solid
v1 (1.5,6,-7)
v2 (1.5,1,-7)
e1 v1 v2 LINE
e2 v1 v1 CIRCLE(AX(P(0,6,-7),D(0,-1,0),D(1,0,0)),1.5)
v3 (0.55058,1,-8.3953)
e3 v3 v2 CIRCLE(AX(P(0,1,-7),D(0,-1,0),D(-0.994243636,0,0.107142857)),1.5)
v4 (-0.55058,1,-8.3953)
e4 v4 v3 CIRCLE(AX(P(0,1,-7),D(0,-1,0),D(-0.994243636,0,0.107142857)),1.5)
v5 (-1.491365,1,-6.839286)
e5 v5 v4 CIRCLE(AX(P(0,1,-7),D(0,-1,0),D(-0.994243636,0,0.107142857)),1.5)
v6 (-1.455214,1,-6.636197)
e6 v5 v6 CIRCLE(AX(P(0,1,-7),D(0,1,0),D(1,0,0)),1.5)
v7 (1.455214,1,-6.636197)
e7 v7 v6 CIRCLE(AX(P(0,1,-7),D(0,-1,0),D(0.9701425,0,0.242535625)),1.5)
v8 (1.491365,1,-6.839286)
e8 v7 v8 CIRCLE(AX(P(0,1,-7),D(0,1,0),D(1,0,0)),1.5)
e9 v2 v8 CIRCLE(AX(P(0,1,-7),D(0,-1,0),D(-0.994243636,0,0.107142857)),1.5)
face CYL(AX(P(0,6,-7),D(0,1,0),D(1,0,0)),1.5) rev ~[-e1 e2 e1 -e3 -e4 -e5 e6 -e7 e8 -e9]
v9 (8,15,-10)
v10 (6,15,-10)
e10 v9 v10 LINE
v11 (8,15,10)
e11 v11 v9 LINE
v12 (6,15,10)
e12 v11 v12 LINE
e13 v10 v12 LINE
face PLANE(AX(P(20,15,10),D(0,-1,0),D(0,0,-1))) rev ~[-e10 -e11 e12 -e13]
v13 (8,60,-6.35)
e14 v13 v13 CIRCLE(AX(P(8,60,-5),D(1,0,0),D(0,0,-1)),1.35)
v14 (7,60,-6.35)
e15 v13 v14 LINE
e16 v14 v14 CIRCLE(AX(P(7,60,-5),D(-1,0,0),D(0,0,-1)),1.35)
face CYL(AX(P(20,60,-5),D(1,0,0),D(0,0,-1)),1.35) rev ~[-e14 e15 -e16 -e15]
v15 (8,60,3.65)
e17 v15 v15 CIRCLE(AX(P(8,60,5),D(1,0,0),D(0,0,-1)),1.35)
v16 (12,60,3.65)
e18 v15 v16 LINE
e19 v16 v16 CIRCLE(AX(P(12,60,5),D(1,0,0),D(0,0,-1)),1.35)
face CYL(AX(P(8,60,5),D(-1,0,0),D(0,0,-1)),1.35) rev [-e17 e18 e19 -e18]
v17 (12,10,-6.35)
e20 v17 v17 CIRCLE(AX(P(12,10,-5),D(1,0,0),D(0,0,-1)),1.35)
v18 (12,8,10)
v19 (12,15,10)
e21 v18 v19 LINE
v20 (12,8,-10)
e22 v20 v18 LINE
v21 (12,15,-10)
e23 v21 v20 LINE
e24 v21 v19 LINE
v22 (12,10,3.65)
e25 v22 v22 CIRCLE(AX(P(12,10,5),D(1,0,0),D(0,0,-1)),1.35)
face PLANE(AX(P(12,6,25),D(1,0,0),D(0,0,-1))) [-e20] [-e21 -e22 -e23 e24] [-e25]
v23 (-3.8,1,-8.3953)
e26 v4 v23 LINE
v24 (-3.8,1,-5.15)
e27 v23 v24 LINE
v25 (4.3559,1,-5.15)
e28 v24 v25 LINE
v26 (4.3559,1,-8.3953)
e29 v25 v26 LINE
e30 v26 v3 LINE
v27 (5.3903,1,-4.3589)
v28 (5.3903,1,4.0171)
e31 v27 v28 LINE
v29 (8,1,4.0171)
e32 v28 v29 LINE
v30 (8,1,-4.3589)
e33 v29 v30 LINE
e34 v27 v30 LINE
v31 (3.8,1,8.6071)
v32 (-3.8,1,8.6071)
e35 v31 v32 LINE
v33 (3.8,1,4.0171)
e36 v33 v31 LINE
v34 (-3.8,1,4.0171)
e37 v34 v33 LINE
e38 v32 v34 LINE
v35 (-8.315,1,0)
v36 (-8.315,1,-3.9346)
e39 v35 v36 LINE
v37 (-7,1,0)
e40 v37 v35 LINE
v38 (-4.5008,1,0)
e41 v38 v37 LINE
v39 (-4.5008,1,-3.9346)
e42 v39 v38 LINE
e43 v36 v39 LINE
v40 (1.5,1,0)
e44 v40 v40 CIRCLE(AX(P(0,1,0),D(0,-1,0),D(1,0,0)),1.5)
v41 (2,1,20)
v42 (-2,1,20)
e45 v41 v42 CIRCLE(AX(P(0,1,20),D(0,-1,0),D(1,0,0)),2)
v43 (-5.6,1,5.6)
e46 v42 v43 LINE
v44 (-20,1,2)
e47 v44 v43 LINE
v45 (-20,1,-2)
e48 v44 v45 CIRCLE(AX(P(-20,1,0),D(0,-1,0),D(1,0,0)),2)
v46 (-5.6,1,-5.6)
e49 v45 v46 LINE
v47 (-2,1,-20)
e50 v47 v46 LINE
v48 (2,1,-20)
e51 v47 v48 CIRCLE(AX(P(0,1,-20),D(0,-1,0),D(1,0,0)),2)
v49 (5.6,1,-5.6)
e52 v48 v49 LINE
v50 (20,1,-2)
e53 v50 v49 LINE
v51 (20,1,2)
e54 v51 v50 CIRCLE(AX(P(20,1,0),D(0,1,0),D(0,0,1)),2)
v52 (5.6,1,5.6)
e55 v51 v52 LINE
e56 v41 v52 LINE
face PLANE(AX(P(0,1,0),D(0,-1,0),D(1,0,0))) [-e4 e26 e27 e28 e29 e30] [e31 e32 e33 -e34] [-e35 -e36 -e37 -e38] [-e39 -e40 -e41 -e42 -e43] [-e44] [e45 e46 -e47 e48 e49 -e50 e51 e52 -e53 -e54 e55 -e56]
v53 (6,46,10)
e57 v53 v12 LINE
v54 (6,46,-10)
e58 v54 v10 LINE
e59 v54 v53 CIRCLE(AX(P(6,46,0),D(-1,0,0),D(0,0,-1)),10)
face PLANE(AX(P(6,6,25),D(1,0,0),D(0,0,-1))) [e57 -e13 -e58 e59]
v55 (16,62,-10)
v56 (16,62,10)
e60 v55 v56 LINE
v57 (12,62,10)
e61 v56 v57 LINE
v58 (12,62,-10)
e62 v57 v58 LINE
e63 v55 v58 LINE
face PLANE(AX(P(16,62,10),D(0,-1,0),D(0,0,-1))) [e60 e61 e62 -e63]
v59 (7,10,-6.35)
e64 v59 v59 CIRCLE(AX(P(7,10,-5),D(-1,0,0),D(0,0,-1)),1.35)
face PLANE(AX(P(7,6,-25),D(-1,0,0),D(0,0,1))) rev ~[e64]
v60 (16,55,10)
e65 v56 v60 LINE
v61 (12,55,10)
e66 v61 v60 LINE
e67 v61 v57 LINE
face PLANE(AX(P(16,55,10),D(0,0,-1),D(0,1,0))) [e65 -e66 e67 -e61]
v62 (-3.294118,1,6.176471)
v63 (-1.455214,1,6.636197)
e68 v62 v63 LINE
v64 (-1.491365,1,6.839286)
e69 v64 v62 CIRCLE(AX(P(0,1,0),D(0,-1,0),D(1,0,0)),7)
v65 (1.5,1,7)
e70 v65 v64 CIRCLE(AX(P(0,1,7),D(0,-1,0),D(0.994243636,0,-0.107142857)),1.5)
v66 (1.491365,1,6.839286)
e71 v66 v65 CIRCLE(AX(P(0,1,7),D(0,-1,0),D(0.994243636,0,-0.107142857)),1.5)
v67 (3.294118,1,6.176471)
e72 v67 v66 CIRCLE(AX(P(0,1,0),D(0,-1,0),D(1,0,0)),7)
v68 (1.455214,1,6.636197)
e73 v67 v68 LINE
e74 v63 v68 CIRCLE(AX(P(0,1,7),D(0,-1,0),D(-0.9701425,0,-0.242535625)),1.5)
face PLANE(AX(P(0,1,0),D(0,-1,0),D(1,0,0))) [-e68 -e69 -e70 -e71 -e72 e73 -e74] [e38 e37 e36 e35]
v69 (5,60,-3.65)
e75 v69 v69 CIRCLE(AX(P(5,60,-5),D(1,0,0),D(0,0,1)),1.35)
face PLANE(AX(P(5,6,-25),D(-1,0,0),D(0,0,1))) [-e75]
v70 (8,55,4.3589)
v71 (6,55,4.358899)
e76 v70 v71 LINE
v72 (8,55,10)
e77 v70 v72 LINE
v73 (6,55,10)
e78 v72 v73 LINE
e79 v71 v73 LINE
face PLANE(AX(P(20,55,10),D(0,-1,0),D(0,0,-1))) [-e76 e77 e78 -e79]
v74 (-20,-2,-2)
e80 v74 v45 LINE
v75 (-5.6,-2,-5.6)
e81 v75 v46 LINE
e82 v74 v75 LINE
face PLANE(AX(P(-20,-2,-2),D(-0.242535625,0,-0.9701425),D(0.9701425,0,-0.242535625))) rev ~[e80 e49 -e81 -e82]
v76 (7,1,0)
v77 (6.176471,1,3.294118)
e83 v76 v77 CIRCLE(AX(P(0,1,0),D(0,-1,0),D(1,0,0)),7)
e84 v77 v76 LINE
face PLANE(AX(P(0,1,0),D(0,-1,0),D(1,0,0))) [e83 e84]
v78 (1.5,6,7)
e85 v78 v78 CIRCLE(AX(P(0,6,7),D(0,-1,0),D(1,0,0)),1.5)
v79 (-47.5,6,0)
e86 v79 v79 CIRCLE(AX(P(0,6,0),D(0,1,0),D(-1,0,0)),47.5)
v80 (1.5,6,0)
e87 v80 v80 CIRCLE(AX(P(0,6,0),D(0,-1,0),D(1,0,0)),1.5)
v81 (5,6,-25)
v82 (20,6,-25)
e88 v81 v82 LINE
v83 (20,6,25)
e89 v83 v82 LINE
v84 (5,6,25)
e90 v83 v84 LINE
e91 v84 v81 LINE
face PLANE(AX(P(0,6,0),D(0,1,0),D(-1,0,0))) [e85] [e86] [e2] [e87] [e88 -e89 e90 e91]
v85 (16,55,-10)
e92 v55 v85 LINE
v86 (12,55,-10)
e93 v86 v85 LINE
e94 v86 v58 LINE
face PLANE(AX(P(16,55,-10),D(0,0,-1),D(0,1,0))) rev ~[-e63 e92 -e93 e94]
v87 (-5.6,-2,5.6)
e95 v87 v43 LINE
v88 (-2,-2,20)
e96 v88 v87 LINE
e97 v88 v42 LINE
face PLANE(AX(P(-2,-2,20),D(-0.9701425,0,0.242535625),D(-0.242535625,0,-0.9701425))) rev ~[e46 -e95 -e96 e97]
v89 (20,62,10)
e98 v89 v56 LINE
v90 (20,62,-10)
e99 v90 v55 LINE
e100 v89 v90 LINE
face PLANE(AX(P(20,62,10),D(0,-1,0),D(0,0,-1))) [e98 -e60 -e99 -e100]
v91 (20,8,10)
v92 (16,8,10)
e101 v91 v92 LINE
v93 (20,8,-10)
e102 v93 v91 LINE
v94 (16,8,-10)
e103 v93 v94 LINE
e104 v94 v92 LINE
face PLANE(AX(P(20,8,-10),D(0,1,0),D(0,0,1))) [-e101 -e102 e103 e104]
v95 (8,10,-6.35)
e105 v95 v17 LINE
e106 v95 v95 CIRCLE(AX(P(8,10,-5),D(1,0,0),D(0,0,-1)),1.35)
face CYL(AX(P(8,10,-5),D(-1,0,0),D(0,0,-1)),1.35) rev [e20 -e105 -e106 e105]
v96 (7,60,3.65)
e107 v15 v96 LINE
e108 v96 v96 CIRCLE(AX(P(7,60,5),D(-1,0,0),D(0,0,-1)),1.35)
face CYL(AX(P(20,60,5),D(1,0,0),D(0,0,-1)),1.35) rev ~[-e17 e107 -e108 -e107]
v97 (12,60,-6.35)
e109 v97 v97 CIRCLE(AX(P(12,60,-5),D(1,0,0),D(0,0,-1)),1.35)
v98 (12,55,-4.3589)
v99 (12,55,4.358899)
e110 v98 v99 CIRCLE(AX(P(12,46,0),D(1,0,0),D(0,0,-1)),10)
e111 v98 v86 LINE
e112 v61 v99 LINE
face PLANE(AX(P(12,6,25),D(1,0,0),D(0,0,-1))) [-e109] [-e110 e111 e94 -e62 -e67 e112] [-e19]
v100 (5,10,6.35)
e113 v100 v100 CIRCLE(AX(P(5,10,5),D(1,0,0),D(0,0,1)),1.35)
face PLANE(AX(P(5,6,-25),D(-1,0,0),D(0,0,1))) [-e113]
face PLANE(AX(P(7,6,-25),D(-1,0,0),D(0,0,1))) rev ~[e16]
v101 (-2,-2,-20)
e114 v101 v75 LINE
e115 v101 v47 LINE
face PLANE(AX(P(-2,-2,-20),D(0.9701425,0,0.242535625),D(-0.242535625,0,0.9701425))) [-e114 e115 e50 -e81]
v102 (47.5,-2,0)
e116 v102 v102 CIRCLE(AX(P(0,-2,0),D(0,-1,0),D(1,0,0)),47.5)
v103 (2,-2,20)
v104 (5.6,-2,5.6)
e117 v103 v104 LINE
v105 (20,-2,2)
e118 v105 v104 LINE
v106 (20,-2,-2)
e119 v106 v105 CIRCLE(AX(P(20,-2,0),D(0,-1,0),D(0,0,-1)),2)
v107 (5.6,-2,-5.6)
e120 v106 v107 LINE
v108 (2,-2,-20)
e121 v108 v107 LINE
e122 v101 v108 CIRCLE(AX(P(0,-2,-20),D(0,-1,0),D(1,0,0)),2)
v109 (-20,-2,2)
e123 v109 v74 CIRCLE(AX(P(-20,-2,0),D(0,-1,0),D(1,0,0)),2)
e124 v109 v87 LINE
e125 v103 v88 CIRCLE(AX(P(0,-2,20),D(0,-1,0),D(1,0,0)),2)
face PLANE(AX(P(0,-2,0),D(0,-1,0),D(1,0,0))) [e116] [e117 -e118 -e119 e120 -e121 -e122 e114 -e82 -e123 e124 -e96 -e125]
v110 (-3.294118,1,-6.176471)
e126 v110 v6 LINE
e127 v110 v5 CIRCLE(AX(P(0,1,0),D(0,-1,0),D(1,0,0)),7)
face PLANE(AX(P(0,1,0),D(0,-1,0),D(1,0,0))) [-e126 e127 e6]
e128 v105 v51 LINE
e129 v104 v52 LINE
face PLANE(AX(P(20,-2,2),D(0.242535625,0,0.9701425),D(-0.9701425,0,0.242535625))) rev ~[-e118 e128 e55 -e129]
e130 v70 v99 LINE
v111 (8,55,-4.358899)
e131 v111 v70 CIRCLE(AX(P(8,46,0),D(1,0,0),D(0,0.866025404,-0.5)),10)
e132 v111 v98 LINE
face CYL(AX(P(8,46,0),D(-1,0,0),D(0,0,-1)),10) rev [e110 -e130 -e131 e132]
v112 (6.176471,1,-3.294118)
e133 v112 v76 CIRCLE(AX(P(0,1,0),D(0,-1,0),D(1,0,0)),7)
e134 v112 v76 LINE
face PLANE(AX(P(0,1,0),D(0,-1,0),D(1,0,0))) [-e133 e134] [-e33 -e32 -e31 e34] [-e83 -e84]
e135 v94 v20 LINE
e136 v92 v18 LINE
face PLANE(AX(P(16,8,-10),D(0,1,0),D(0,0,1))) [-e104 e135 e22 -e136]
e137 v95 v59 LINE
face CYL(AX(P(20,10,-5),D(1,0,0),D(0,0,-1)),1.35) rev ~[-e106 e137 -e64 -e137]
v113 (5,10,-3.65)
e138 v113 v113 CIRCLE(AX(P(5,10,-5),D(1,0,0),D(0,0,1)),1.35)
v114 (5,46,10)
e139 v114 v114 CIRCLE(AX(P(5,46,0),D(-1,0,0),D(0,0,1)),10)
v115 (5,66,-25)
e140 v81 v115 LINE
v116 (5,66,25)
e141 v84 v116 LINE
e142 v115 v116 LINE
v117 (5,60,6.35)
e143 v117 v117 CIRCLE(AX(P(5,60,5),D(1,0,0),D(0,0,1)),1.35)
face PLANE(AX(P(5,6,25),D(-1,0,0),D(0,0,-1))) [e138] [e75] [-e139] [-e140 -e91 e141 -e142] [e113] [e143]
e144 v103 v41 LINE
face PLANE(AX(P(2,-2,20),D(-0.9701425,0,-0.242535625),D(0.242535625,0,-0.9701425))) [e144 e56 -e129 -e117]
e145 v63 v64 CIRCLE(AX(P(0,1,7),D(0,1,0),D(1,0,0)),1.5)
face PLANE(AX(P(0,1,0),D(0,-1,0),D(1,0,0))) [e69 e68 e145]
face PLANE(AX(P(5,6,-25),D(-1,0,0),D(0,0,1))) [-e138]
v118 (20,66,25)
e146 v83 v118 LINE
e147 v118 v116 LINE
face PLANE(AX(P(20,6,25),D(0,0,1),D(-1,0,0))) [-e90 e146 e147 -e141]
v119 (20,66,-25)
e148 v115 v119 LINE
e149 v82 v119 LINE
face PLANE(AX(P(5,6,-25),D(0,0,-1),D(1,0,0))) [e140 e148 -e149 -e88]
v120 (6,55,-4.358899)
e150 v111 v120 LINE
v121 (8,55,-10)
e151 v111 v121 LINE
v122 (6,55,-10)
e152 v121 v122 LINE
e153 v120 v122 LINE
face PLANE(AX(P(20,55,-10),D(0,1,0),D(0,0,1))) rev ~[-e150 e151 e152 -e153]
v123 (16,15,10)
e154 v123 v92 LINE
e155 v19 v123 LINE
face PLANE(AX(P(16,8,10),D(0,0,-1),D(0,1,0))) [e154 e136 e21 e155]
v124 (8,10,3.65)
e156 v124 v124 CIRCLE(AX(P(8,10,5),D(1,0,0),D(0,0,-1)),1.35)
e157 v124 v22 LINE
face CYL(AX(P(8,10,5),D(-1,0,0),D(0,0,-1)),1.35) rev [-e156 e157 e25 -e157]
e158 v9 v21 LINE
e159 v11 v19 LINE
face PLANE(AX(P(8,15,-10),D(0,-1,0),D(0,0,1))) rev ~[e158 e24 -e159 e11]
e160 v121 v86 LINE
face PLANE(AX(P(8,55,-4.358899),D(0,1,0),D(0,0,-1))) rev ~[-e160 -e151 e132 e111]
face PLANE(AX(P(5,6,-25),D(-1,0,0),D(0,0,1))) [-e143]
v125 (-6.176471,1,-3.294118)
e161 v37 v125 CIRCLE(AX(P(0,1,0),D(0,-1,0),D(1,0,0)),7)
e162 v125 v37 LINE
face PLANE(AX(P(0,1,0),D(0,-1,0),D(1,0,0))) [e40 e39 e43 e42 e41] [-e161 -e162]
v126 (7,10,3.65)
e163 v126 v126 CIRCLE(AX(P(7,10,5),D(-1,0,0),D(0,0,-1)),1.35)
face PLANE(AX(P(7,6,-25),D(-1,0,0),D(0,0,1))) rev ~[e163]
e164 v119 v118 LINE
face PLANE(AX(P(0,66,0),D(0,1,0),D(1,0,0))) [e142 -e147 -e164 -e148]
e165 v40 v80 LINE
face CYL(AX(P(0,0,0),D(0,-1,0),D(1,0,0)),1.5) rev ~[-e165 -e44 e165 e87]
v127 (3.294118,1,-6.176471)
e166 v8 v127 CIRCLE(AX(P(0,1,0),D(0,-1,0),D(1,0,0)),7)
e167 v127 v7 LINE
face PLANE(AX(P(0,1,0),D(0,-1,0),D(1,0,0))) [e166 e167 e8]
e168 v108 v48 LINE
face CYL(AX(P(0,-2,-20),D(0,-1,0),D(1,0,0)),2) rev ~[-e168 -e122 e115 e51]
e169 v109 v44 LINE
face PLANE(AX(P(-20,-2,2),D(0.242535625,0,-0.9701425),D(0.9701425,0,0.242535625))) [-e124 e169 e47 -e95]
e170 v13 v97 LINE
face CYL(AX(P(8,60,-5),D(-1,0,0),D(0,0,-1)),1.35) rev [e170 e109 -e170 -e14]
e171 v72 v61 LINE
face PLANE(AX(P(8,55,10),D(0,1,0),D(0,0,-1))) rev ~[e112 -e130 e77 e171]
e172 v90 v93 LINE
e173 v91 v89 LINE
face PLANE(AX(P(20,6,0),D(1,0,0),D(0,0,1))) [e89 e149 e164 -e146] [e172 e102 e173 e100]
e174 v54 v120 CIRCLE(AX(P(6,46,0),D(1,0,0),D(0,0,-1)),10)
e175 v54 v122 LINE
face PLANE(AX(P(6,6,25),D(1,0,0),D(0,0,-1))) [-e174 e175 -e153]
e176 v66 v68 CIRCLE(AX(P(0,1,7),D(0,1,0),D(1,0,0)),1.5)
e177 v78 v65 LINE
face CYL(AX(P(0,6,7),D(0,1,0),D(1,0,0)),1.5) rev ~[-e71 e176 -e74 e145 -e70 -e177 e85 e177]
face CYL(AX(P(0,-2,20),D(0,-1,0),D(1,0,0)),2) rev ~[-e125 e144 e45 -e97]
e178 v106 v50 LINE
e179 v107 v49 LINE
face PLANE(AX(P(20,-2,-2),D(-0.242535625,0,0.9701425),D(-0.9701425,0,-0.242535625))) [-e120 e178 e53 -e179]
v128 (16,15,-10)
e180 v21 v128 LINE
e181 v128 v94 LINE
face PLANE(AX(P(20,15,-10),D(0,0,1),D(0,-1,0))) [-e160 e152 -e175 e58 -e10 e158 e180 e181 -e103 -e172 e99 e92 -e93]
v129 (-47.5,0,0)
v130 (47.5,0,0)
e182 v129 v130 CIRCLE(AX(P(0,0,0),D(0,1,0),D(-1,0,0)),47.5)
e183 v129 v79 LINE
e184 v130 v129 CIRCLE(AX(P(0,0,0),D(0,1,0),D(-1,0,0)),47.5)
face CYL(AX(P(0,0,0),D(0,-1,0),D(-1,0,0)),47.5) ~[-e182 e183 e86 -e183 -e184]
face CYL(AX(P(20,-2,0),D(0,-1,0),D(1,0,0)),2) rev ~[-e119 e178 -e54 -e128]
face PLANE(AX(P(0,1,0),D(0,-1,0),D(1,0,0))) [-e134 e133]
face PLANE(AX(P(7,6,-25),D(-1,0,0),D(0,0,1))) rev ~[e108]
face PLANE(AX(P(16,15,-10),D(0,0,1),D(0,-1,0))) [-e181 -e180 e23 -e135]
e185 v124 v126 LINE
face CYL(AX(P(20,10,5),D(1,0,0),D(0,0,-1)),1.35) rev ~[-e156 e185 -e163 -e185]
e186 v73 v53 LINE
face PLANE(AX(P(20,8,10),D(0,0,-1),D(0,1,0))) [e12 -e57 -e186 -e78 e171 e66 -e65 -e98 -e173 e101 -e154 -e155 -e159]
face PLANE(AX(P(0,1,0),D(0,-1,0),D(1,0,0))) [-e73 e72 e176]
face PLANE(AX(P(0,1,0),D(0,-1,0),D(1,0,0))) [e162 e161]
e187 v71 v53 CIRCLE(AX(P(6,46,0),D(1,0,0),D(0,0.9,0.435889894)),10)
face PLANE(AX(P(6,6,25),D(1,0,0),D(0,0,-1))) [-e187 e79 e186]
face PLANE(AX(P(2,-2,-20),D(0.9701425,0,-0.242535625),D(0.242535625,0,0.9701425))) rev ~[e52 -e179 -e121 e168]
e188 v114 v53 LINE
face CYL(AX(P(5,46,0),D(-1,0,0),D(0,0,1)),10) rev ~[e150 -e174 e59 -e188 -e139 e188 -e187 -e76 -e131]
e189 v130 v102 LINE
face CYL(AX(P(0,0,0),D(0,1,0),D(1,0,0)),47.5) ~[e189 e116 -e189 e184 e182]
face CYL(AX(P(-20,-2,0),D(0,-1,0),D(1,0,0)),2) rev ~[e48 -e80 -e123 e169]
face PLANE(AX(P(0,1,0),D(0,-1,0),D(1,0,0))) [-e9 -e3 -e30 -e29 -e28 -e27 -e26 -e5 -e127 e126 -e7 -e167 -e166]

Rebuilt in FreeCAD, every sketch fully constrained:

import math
import FreeCAD as App
import Part
import Sketcher
Q = App.Units.Quantity

doc = App.newDocument("Part")
body = doc.addObject("PartDesign::Body", "Body")

sketch1 = body.newObject("Sketcher::SketchObject", "Sketch")
sketch1.AttachmentSupport = (doc.getObject("XZ_Plane"), [""])
sketch1.MapMode = "FlatFace"
sketch1.addGeometry(Part.Circle(App.Vector(0, 0, 0), App.Vector(0, 0, 1), 48), False)
sketch1.addConstraint([
    Sketcher.Constraint("Coincident", 0, 3, -1, 1),
    Sketcher.Constraint("Diameter", 0, Q("95 mm")),
])
pad1 = body.newObject("PartDesign::Pad", "Pad")
pad1.Profile = sketch1
pad1.Length = 6
pad1.Reversed = True

sketch2 = body.newObject("Sketcher::SketchObject", "Sketch001")
sketch2.AttachmentSupport = (doc.getObject("XZ_Plane"), [""])
sketch2.MapMode = "FlatFace"
sketch2.AttachmentOffset = App.Placement(App.Vector(0, 0, -6), App.Rotation())
sketch2.addGeometry([
    Part.Circle(App.Vector(0, -7, 0), App.Vector(0, 0, 1), 1.5),
    Part.Circle(App.Vector(0, 7, 0), App.Vector(0, 0, 1), 1.5),
], False)
sketch2.addConstraint([
    Sketcher.Constraint("Equal", 0, 1),
    Sketcher.Constraint("Symmetric", 0, 3, 1, 3, -1, 1),
    Sketcher.Constraint("PointOnObject", 0, 3, -2),
    Sketcher.Constraint("Diameter", 0, Q("3 mm")),
    Sketcher.Constraint("DistanceY", 0, 3, 1, 3, Q("14 mm")),
])
pocket1 = body.newObject("PartDesign::Pocket", "Pocket")
pocket1.Profile = sketch2
pocket1.Length = 6
pocket1.Reversed = True

sketch3 = body.newObject("Sketcher::SketchObject", "Sketch002")
sketch3.AttachmentSupport = (doc.getObject("XZ_Plane"), [""])
sketch3.MapMode = "FlatFace"
sketch3.AttachmentOffset = App.Placement(App.Vector(0, 0, -6), App.Rotation())
sketch3.addGeometry([
    Part.LineSegment(App.Vector(20, 25, 0), App.Vector(20, -25, 0)),
    Part.LineSegment(App.Vector(20, -25, 0), App.Vector(5, -25, 0)),
    Part.LineSegment(App.Vector(5, -25, 0), App.Vector(5, 25, 0)),
    Part.LineSegment(App.Vector(5, 25, 0), App.Vector(20, 25, 0)),
], False)
sketch3.addConstraint([
    Sketcher.Constraint("Coincident", 0, 2, 1, 1),
    Sketcher.Constraint("Coincident", 1, 2, 2, 1),
    Sketcher.Constraint("Coincident", 2, 2, 3, 1),
    Sketcher.Constraint("Coincident", 3, 2, 0, 1),
    Sketcher.Constraint("Vertical", 0),
    Sketcher.Constraint("Horizontal", 1),
    Sketcher.Constraint("Vertical", 2),
    Sketcher.Constraint("Horizontal", 3),
    Sketcher.Constraint("DistanceX", 1, 2, 1, 1, Q("15 mm")),
    Sketcher.Constraint("DistanceY", 0, 2, -1, 1, Q("25 mm")),
    Sketcher.Constraint("DistanceX", -1, 1, 1, 2, Q("5 mm")),
    Sketcher.Constraint("DistanceY", -1, 1, 2, 2, Q("25 mm")),
])
pad2 = body.newObject("PartDesign::Pad", "Pad001")
pad2.Profile = sketch3
pad2.Length = 60
pad2.Reversed = True

sketch4 = body.newObject("Sketcher::SketchObject", "Sketch003")
sketch4.AttachmentSupport = (doc.getObject("YZ_Plane"), [""])
sketch4.MapMode = "FlatFace"
sketch4.AttachmentOffset = App.Placement(App.Vector(0, 0, 5), App.Rotation())
sketch4.addGeometry(Part.Circle(App.Vector(46, 0, 0), App.Vector(0, 0, 1), 10), False)
sketch4.addConstraint([
    Sketcher.Constraint("PointOnObject", 0, 3, -1),
    Sketcher.Constraint("Diameter", 0, Q("20 mm")),
    Sketcher.Constraint("DistanceX", -1, 1, 0, 3, Q("46 mm")),
])
pocket2 = body.newObject("PartDesign::Pocket", "Pocket001")
pocket2.Profile = sketch4
pocket2.Length = 20
pocket2.Reversed = True

sketch5 = body.newObject("Sketcher::SketchObject", "Sketch004")
sketch5.AttachmentSupport = (doc.getObject("YZ_Plane"), [""])
sketch5.MapMode = "FlatFace"
sketch5.AttachmentOffset = App.Placement(App.Vector(0, 0, 20), App.Rotation())
sketch5.addGeometry([
    Part.Circle(App.Vector(10, 5, 0), App.Vector(0, 0, 1), 1.4),
    Part.Circle(App.Vector(10, -5, 0), App.Vector(0, 0, 1), 1.4),
], False)
sketch5.addConstraint([
    Sketcher.Constraint("Equal", 0, 1),
    Sketcher.Constraint("Symmetric", 0, 3, 1, 3, -1),
    Sketcher.Constraint("Diameter", 0, Q("2.7 mm")),
    Sketcher.Constraint("DistanceY", -1, 1, 0, 3, Q("5 mm")),
    Sketcher.Constraint("DistanceX", -1, 1, 0, 3, Q("10 mm")),
])
pocket3 = body.newObject("PartDesign::Pocket", "Pocket002")
pocket3.Profile = sketch5
pocket3.Length = 20

sketch6 = body.newObject("Sketcher::SketchObject", "Sketch005")
sketch6.AttachmentSupport = (doc.getObject("YZ_Plane"), [""])
sketch6.MapMode = "FlatFace"
sketch6.AttachmentOffset = App.Placement(App.Vector(0, 0, 20), App.Rotation())
sketch6.addGeometry([
    Part.Circle(App.Vector(60, -5, 0), App.Vector(0, 0, 1), 1.4),
    Part.Circle(App.Vector(60, 5, 0), App.Vector(0, 0, 1), 1.4),
], False)
sketch6.addConstraint([
    Sketcher.Constraint("Equal", 0, 1),
    Sketcher.Constraint("Symmetric", 0, 3, 1, 3, -1),
    Sketcher.Constraint("Diameter", 0, Q("2.7 mm")),
    Sketcher.Constraint("DistanceY", 0, 3, -1, 1, Q("5 mm")),
    Sketcher.Constraint("DistanceX", -1, 1, 0, 3, Q("60 mm")),
])
pocket4 = body.newObject("PartDesign::Pocket", "Pocket003")
pocket4.Profile = sketch6
pocket4.Length = 20

sketch7 = body.newObject("Sketcher::SketchObject", "Sketch006")
sketch7.AttachmentSupport = (doc.getObject("YZ_Plane"), [""])
sketch7.MapMode = "FlatFace"
sketch7.AttachmentOffset = App.Placement(App.Vector(0, 0, 20), App.Rotation())
sketch7.addGeometry([
    Part.LineSegment(App.Vector(54.66, 5, 0), App.Vector(55, 5, 0)),
    Part.LineSegment(App.Vector(55, 5, 0), App.Vector(55, 10, 0)),
    Part.LineSegment(App.Vector(55, 10, 0), App.Vector(46, 10, 0)),
    Part.ArcOfCircle(Part.Circle(App.Vector(46, 0, 0), App.Vector(0, 0, 1), 10), math.radians(30), math.radians(90)),
    Part.LineSegment(App.Vector(55, -10, 0), App.Vector(55, -5, 0)),
    Part.LineSegment(App.Vector(55, -5, 0), App.Vector(54.66, -5, 0)),
    Part.ArcOfCircle(Part.Circle(App.Vector(46, 0, 0), App.Vector(0, 0, 1), 10), math.radians(-90), math.radians(-30)),
    Part.LineSegment(App.Vector(46, -10, 0), App.Vector(55, -10, 0)),
    Part.LineSegment(App.Vector(46, 10, 0), App.Vector(15, 10, 0)),
    Part.LineSegment(App.Vector(15, 10, 0), App.Vector(15, -10, 0)),
    Part.LineSegment(App.Vector(15, -10, 0), App.Vector(46, -10, 0)),
    Part.ArcOfCircle(Part.Circle(App.Vector(46, 0, 0), App.Vector(0, 0, 1), 10), math.radians(90), math.radians(270)),
], False)
sketch7.addConstraint([
    Sketcher.Constraint("Coincident", 0, 2, 1, 1),
    Sketcher.Constraint("Coincident", 1, 2, 2, 1),
    Sketcher.Constraint("Tangent", 2, 2, 3, 2),
    Sketcher.Constraint("Coincident", 3, 1, 0, 1),
    Sketcher.Constraint("Coincident", 4, 2, 5, 1),
    Sketcher.Constraint("Coincident", 5, 2, 6, 2),
    Sketcher.Constraint("Tangent", 6, 1, 7, 1),
    Sketcher.Constraint("Coincident", 7, 2, 4, 1),
    Sketcher.Constraint("Coincident", 8, 2, 9, 1),
    Sketcher.Constraint("Coincident", 9, 2, 10, 1),
    Sketcher.Constraint("Tangent", 10, 2, 11, 2),
    Sketcher.Constraint("Tangent", 11, 1, 8, 1),
    Sketcher.Constraint("Horizontal", 0),
    Sketcher.Constraint("Vertical", 1),
    Sketcher.Constraint("Horizontal", 2),
    Sketcher.Constraint("Vertical", 4),
    Sketcher.Constraint("Horizontal", 5),
    Sketcher.Constraint("Horizontal", 7),
    Sketcher.Constraint("Horizontal", 8),
    Sketcher.Constraint("Vertical", 9),
    Sketcher.Constraint("Horizontal", 10),
    Sketcher.Constraint("Coincident", 6, 3, 3, 3),
    Sketcher.Constraint("Coincident", 11, 3, 3, 3),
    Sketcher.Constraint("Equal", 3, 6),
    Sketcher.Constraint("Equal", 6, 11),
    Sketcher.Constraint("Symmetric", 0, 2, 4, 2, -1),
    Sketcher.Constraint("PointOnObject", 3, 3, -1),
    Sketcher.Constraint("Radius", 3, Q("10 mm")),
    Sketcher.Constraint("DistanceX", 8, 2, 8, 1, Q("31 mm")),
    Sketcher.Constraint("DistanceY", 1, 1, 1, 2, Q("5 mm")),
    Sketcher.Constraint("DistanceX", 2, 2, 2, 1, Q("9 mm")),
    Sketcher.Constraint("DistanceX", -1, 1, 3, 3, Q("46 mm")),
])
pocket5 = body.newObject("PartDesign::Pocket", "Pocket004")
pocket5.Profile = sketch7
pocket5.Length = 14

sketch8 = body.newObject("Sketcher::SketchObject", "Sketch007")
sketch8.AttachmentSupport = (doc.getObject("YZ_Plane"), [""])
sketch8.MapMode = "FlatFace"
sketch8.AttachmentOffset = App.Placement(App.Vector(0, 0, 20), App.Rotation())
sketch8.addGeometry([
    Part.LineSegment(App.Vector(62, 10, 0), App.Vector(55, 10, 0)),
    Part.LineSegment(App.Vector(55, 10, 0), App.Vector(55, 5, 0)),
    Part.LineSegment(App.Vector(55, 5, 0), App.Vector(54.66, 5, 0)),
    Part.ArcOfCircle(Part.Circle(App.Vector(46, 0, 0), App.Vector(0, 0, 1), 10), math.radians(-30), math.radians(30)),
    Part.LineSegment(App.Vector(54.66, -5, 0), App.Vector(55, -5, 0)),
    Part.LineSegment(App.Vector(55, -5, 0), App.Vector(55, -10, 0)),
    Part.LineSegment(App.Vector(55, -10, 0), App.Vector(62, -10, 0)),
    Part.LineSegment(App.Vector(62, -10, 0), App.Vector(62, 10, 0)),
    Part.LineSegment(App.Vector(15, -10, 0), App.Vector(15, 10, 0)),
    Part.LineSegment(App.Vector(15, 10, 0), App.Vector(8, 10, 0)),
    Part.LineSegment(App.Vector(8, 10, 0), App.Vector(8, -10, 0)),
    Part.LineSegment(App.Vector(8, -10, 0), App.Vector(15, -10, 0)),
], False)
sketch8.addConstraint([
    Sketcher.Constraint("Coincident", 0, 2, 1, 1),
    Sketcher.Constraint("Coincident", 1, 2, 2, 1),
    Sketcher.Constraint("Coincident", 2, 2, 3, 2),
    Sketcher.Constraint("Coincident", 3, 1, 4, 1),
    Sketcher.Constraint("Coincident", 4, 2, 5, 1),
    Sketcher.Constraint("Coincident", 5, 2, 6, 1),
    Sketcher.Constraint("Coincident", 6, 2, 7, 1),
    Sketcher.Constraint("Coincident", 7, 2, 0, 1),
    Sketcher.Constraint("Coincident", 8, 2, 9, 1),
    Sketcher.Constraint("Coincident", 9, 2, 10, 1),
    Sketcher.Constraint("Coincident", 10, 2, 11, 1),
    Sketcher.Constraint("Coincident", 11, 2, 8, 1),
    Sketcher.Constraint("Horizontal", 0),
    Sketcher.Constraint("Vertical", 1),
    Sketcher.Constraint("Horizontal", 2),
    Sketcher.Constraint("Horizontal", 4),
    Sketcher.Constraint("Vertical", 5),
    Sketcher.Constraint("Horizontal", 6),
    Sketcher.Constraint("Vertical", 7),
    Sketcher.Constraint("Vertical", 8),
    Sketcher.Constraint("Horizontal", 9),
    Sketcher.Constraint("Vertical", 10),
    Sketcher.Constraint("Horizontal", 11),
    Sketcher.Constraint("Symmetric", 2, 2, 3, 1, -1),
    Sketcher.Constraint("Symmetric", 0, 2, 5, 2, -1),
    Sketcher.Constraint("Horizontal", 7, 2, 8, 2),
    Sketcher.Constraint("Horizontal", 6, 2, 10, 2),
    Sketcher.Constraint("Equal", 6, 9),
    Sketcher.Constraint("DistanceX", 0, 2, 0, 1, Q("7 mm")),
    Sketcher.Constraint("Radius", 3, Q("10 mm")),
    Sketcher.Constraint("DistanceY", 1, 2, 1, 1, Q("5 mm")),
    Sketcher.Constraint("DistanceY", 7, 1, 7, 2, Q("20 mm")),
    Sketcher.Constraint("DistanceX", -1, 1, 3, 3, Q("46 mm")),
    Sketcher.Constraint("DistanceX", -1, 1, 0, 2, Q("55 mm")),
    Sketcher.Constraint("DistanceX", -1, 1, 8, 2, Q("15 mm")),
])
pocket6 = body.newObject("PartDesign::Pocket", "Pocket005")
pocket6.Profile = sketch8
pocket6.Length = 12

sketch9 = body.newObject("Sketcher::SketchObject", "Sketch008")
sketch9.AttachmentSupport = (doc.getObject("YZ_Plane"), [""])
sketch9.MapMode = "FlatFace"
sketch9.AttachmentOffset = App.Placement(App.Vector(0, 0, 8), App.Rotation())
sketch9.addGeometry([
    Part.LineSegment(App.Vector(55, -5, 0), App.Vector(55, 5, 0)),
    Part.LineSegment(App.Vector(55, 5, 0), App.Vector(54.4, 5, 0)),
    Part.LineSegment(App.Vector(54.4, 5, 0), App.Vector(54.4, -5, 0)),
    Part.LineSegment(App.Vector(54.4, -5, 0), App.Vector(55, -5, 0)),
], False)
sketch9.addConstraint([
    Sketcher.Constraint("Coincident", 0, 2, 1, 1),
    Sketcher.Constraint("Coincident", 1, 2, 2, 1),
    Sketcher.Constraint("Coincident", 2, 2, 3, 1),
    Sketcher.Constraint("Coincident", 3, 2, 0, 1),
    Sketcher.Constraint("Vertical", 0),
    Sketcher.Constraint("Horizontal", 1),
    Sketcher.Constraint("Vertical", 2),
    Sketcher.Constraint("Horizontal", 3),
    Sketcher.Constraint("DistanceY", 0, 1, 0, 2, Q("10 mm")),
    Sketcher.Constraint("DistanceX", -1, 1, 0, 2, Q("55 mm")),
    Sketcher.Constraint("DistanceY", -1, 1, 0, 2, Q("5 mm")),
    Sketcher.Constraint("DistanceX", 1, 2, 1, 1, Q("0.558 mm")),
])
pocket7 = body.newObject("PartDesign::Pocket", "Pocket006")
pocket7.Profile = sketch9
pocket7.Length = 2

sketch10 = body.newObject("Sketcher::SketchObject", "Sketch009")
sketch10.AttachmentSupport = (doc.getObject("XZ_Plane"), [""])
sketch10.MapMode = "FlatFace"
sketch10.addGeometry(Part.Circle(App.Vector(0, 0, 0), App.Vector(0, 0, 1), 1.5), False)
sketch10.addConstraint([
    Sketcher.Constraint("Coincident", 0, 3, -1, 1),
    Sketcher.Constraint("Diameter", 0, Q("3 mm")),
])
pocket8 = body.newObject("PartDesign::Pocket", "Pocket007")
pocket8.Profile = sketch10
pocket8.Length = 13.8125

sketch11 = body.newObject("Sketcher::SketchObject", "Sketch010")
sketch11.AttachmentSupport = (doc.getObject("XZ_Plane"), [""])
sketch11.MapMode = "FlatFace"
sketch11.addGeometry([
    Part.Circle(App.Vector(0, 0, 0), App.Vector(0, 0, 1), 47.5),
    Part.Circle(App.Vector(0, -7, 0), App.Vector(0, 0, 1), 1.5),
    Part.Circle(App.Vector(0, 0, 0), App.Vector(0, 0, 1), 1.5),
    Part.Circle(App.Vector(0, 7, 0), App.Vector(0, 0, 1), 1.5),
], False)
sketch11.addConstraint([
    Sketcher.Constraint("Coincident", 0, 3, -1, 1),
    Sketcher.Constraint("Coincident", 2, 3, -1, 1),
    Sketcher.Constraint("Equal", 1, 2),
    Sketcher.Constraint("Equal", 2, 3),
    Sketcher.Constraint("Symmetric", 1, 3, 3, 3, -1, 1),
    Sketcher.Constraint("PointOnObject", 1, 3, -2),
    Sketcher.Constraint("Diameter", 1, Q("3 mm")),
    Sketcher.Constraint("Diameter", 0, Q("95 mm")),
    Sketcher.Constraint("DistanceY", 1, 3, -1, 1, Q("7 mm")),
])
pad3 = body.newObject("PartDesign::Pad", "Pad002")
pad3.Profile = sketch11
pad3.Length = 2

sketch12 = body.newObject("Sketcher::SketchObject", "Sketch011")
sketch12.AttachmentSupport = (doc.getObject("XZ_Plane"), [""])
sketch12.MapMode = "FlatFace"
sketch12.AttachmentOffset = App.Placement(App.Vector(0, 0, 2), App.Rotation())
sketch12.addGeometry([
    Part.LineSegment(App.Vector(5.6, -5.6, 0), App.Vector(20, -2, 0)),
    Part.ArcOfCircle(Part.Circle(App.Vector(20, 0, 0), App.Vector(0, 0, 1), 2), math.radians(-90), math.radians(90)),
    Part.LineSegment(App.Vector(20, 2, 0), App.Vector(5.6, 5.6, 0)),
    Part.LineSegment(App.Vector(5.6, 5.6, 0), App.Vector(2, 20, 0)),
    Part.ArcOfCircle(Part.Circle(App.Vector(0, 20, 0), App.Vector(0, 0, 1), 2), math.radians(0), math.radians(180)),
    Part.LineSegment(App.Vector(-2, 20, 0), App.Vector(-5.6, 5.6, 0)),
    Part.LineSegment(App.Vector(-5.6, 5.6, 0), App.Vector(-20, 2, 0)),
    Part.ArcOfCircle(Part.Circle(App.Vector(-20, 0, 0), App.Vector(0, 0, 1), 2), math.radians(90), math.radians(270)),
    Part.LineSegment(App.Vector(-20, -2, 0), App.Vector(-5.6, -5.6, 0)),
    Part.LineSegment(App.Vector(-5.6, -5.6, 0), App.Vector(-2, -20, 0)),
    Part.ArcOfCircle(Part.Circle(App.Vector(0, -20, 0), App.Vector(0, 0, 1), 2), math.radians(180), math.radians(360)),
    Part.LineSegment(App.Vector(2, -20, 0), App.Vector(5.6, -5.6, 0)),
    Part.LineSegment(App.Vector(7, 0, 0), App.Vector(6.2, 3.3, 0)),
    Part.ArcOfCircle(Part.Circle(App.Vector(0, 0, 0), App.Vector(0, 0, 1), 7), math.radians(0), math.radians(28)),
    Part.ArcOfCircle(Part.Circle(App.Vector(0, 0, 0), App.Vector(0, 0, 1), 7), math.radians(-28), math.radians(0)),
    Part.LineSegment(App.Vector(6.2, -3.3, 0), App.Vector(7, 0, 0)),
    Part.LineSegment(App.Vector(1.5, -6.6, 0), App.Vector(3.3, -6.2, 0)),
    Part.ArcOfCircle(Part.Circle(App.Vector(0, 0, 0), App.Vector(0, 0, 1), 7), math.radians(-77.7), math.radians(-61.93)),
    Part.ArcOfCircle(Part.Circle(App.Vector(0, -7, 0), App.Vector(0, 0, 1), 1.5), math.radians(174), math.radians(366)),
    Part.ArcOfCircle(Part.Circle(App.Vector(0, 0, 0), App.Vector(0, 0, 1), 7), math.radians(-118.07), math.radians(-102.3)),
    Part.LineSegment(App.Vector(-3.3, -6.2, 0), App.Vector(-1.5, -6.6, 0)),
    Part.ArcOfCircle(Part.Circle(App.Vector(0, -7, 0), App.Vector(0, 0, 1), 1.5), math.radians(14), math.radians(166)),
    Part.Circle(App.Vector(0, 0, 0), App.Vector(0, 0, 1), 1.5),
    Part.ArcOfCircle(Part.Circle(App.Vector(0, 7, 0), App.Vector(0, 0, 1), 1.5), math.radians(-166), math.radians(-14)),
    Part.LineSegment(App.Vector(-1.5, 6.6, 0), App.Vector(-3.3, 6.2, 0)),
    Part.ArcOfCircle(Part.Circle(App.Vector(0, 0, 0), App.Vector(0, 0, 1), 7), math.radians(102.3), math.radians(118.07)),
    Part.ArcOfCircle(Part.Circle(App.Vector(0, 7, 0), App.Vector(0, 0, 1), 1.5), math.radians(-6), math.radians(186)),
    Part.ArcOfCircle(Part.Circle(App.Vector(0, 0, 0), App.Vector(0, 0, 1), 7), math.radians(61.93), math.radians(77.7)),
    Part.LineSegment(App.Vector(3.3, 6.2, 0), App.Vector(1.5, 6.6, 0)),
    Part.LineSegment(App.Vector(-7, 0, 0), App.Vector(-6.2, -3.3, 0)),
    Part.ArcOfCircle(Part.Circle(App.Vector(0, 0, 0), App.Vector(0, 0, 1), 7), math.radians(180), math.radians(208)),
], False)
sketch12.addConstraint([
    Sketcher.Constraint("Coincident", 0, 2, 1, 1),
    Sketcher.Constraint("Coincident", 1, 2, 2, 1),
    Sketcher.Constraint("Coincident", 2, 2, 3, 1),
    Sketcher.Constraint("Coincident", 3, 2, 4, 1),
    Sketcher.Constraint("Coincident", 4, 2, 5, 1),
    Sketcher.Constraint("Coincident", 5, 2, 6, 1),
    Sketcher.Constraint("Coincident", 6, 2, 7, 1),
    Sketcher.Constraint("Coincident", 7, 2, 8, 1),
    Sketcher.Constraint("Coincident", 8, 2, 9, 1),
    Sketcher.Constraint("Coincident", 9, 2, 10, 1),
    Sketcher.Constraint("Coincident", 10, 2, 11, 1),
    Sketcher.Constraint("Coincident", 11, 2, 0, 1),
    Sketcher.Constraint("Coincident", 12, 1, 13, 1),
    Sketcher.Constraint("Coincident", 13, 2, 12, 2),
    Sketcher.Constraint("Coincident", 14, 1, 15, 1),
    Sketcher.Constraint("Coincident", 15, 2, 14, 2),
    Sketcher.Constraint("Coincident", 16, 2, 17, 2),
    Sketcher.Constraint("Coincident", 17, 1, 18, 2),
    Sketcher.Constraint("Coincident", 18, 1, 19, 2),
    Sketcher.Constraint("Coincident", 19, 1, 20, 1),
    Sketcher.Constraint("Coincident", 20, 2, 21, 2),
    Sketcher.Constraint("Coincident", 21, 1, 16, 1),
    Sketcher.Constraint("Coincident", 23, 1, 24, 1),
    Sketcher.Constraint("Coincident", 24, 2, 25, 2),
    Sketcher.Constraint("Coincident", 25, 1, 26, 2),
    Sketcher.Constraint("Coincident", 26, 1, 27, 2),
    Sketcher.Constraint("Coincident", 27, 1, 28, 1),
    Sketcher.Constraint("Coincident", 28, 2, 23, 2),
    Sketcher.Constraint("Coincident", 29, 1, 30, 1),
    Sketcher.Constraint("Coincident", 30, 2, 29, 2),
    Sketcher.Constraint("Coincident", 13, 3, -1, 1),
    Sketcher.Constraint("Coincident", 14, 3, -1, 1),
    Sketcher.Constraint("Coincident", 17, 3, -1, 1),
    Sketcher.Constraint("Coincident", 19, 3, -1, 1),
    Sketcher.Constraint("Coincident", 22, 3, -1, 1),
    Sketcher.Constraint("Coincident", 25, 3, -1, 1),
    Sketcher.Constraint("Coincident", 27, 3, -1, 1),
    Sketcher.Constraint("Coincident", 30, 3, -1, 1),
    Sketcher.Constraint("Coincident", 21, 3, 18, 3),
    Sketcher.Constraint("Coincident", 26, 3, 23, 3),
    Sketcher.Constraint("Coincident", 15, 2, 12, 1),
    Sketcher.Constraint("Equal", 1, 4),
    Sketcher.Constraint("Equal", 4, 7),
    Sketcher.Constraint("Equal", 7, 10),
    Sketcher.Constraint("Equal", 14, 17),
    Sketcher.Constraint("Equal", 17, 19),
    Sketcher.Constraint("Equal", 18, 21),
    Sketcher.Constraint("Equal", 21, 22),
    Sketcher.Constraint("Equal", 22, 23),
    Sketcher.Constraint("Equal", 19, 25),
    Sketcher.Constraint("Equal", 23, 26),
    Sketcher.Constraint("Equal", 25, 27),
    Sketcher.Constraint("Equal", 27, 30),
    Sketcher.Constraint("Symmetric", 1, 3, 7, 3, -1, 1),
    Sketcher.Constraint("Symmetric", 4, 3, 10, 3, -1, 1),
    Sketcher.Constraint("Symmetric", 18, 3, 23, 3, -1, 1),
    Sketcher.Constraint("Symmetric", 2, 2, 8, 2, -1, 1),
    Sketcher.Constraint("Symmetric", 5, 2, 11, 2, -1, 1),
    Sketcher.Constraint("Symmetric", 3, 2, 4, 2, -2),
    Sketcher.Constraint("Symmetric", 2, 2, 5, 2, -2),
    Sketcher.Constraint("Symmetric", 1, 2, 6, 2, -2),
    Sketcher.Constraint("Symmetric", 20, 2, 21, 1, -2),
    Sketcher.Constraint("PointOnObject", 12, 1, -1),
    Sketcher.Constraint("PointOnObject", 29, 1, -1),
    Sketcher.Constraint("Perpendicular", 0, 3),
    Sketcher.Constraint("Perpendicular", 2, 5),
    Sketcher.Constraint("Perpendicular", 5, 8),
    Sketcher.Constraint("Perpendicular", 6, 9),
    Sketcher.Constraint("Perpendicular", 8, 11),
    Sketcher.Constraint("Parallel", 9, 12),
    Sketcher.Constraint("Parallel", 11, 15),
    Sketcher.Constraint("Perpendicular", 12, 16),
    Sketcher.Constraint("Perpendicular", 15, 20),
    Sketcher.Constraint("Parallel", 16, 24),
    Sketcher.Constraint("Parallel", 20, 28),
    Sketcher.Constraint("Perpendicular", 24, 29),
    Sketcher.Constraint("Horizontal", 4, 3, 3, 2),
    Sketcher.Constraint("Horizontal", 24, 2, 27, 1),
    Sketcher.Constraint("Vertical", 1, 3, 0, 2),
    Sketcher.Constraint("Vertical", 20, 2, 23, 1),
    Sketcher.Constraint("Equal", 2, 3),
    Sketcher.Constraint("Radius", 1, Q("2 mm")),
    Sketcher.Constraint("Radius", 13, Q("7 mm")),
    Sketcher.Constraint("Diameter", 22, Q("3 mm")),
    Sketcher.Constraint("DistanceX", -1, 1, 1, 3, Q("20 mm")),
    Sketcher.Constraint("DistanceY", 18, 3, -1, 1, Q("7 mm")),
    Sketcher.Constraint("DistanceX", -1, 1, 2, 2, Q("5.6 mm")),
    Sketcher.Constraint("DistanceX", -1, 1, 16, 2, Q("3.294 mm")),
])
pocket9 = body.newObject("PartDesign::Pocket", "Pocket008")
pocket9.Profile = sketch12
pocket9.Length = 3

sketch13 = body.newObject("Sketcher::SketchObject", "Sketch012")
sketch13.AttachmentSupport = (doc.getObject("XZ_Plane"), [""])
sketch13.MapMode = "FlatFace"
sketch13.AttachmentOffset = App.Placement(App.Vector(0, 0, 2), App.Rotation())
sketch13.addGeometry([
    Part.LineSegment(App.Vector(-8.3, 0, 0), App.Vector(-8.3, -3.9, 0)),
    Part.LineSegment(App.Vector(-8.3, -3.9, 0), App.Vector(-4.5, -3.9, 0)),
    Part.LineSegment(App.Vector(-4.5, -3.9, 0), App.Vector(-4.5, 0, 0)),
    Part.LineSegment(App.Vector(-4.5, 0, 0), App.Vector(-8.3, 0, 0)),
    Part.LineSegment(App.Vector(4.4, -5.2, 0), App.Vector(-3.8, -5.2, 0)),
    Part.LineSegment(App.Vector(-3.8, -5.2, 0), App.Vector(-3.8, -8.4, 0)),
    Part.LineSegment(App.Vector(-3.8, -8.4, 0), App.Vector(4.4, -8.4, 0)),
    Part.LineSegment(App.Vector(4.4, -8.4, 0), App.Vector(4.4, -5.2, 0)),
    Part.LineSegment(App.Vector(-3.8, 8.6, 0), App.Vector(-3.8, 4, 0)),
    Part.LineSegment(App.Vector(-3.8, 4, 0), App.Vector(3.8, 4, 0)),
    Part.LineSegment(App.Vector(3.8, 4, 0), App.Vector(3.8, 8.6, 0)),
    Part.LineSegment(App.Vector(3.8, 8.6, 0), App.Vector(-3.8, 8.6, 0)),
    Part.LineSegment(App.Vector(5.4, -4.4, 0), App.Vector(8, -4.4, 0)),
    Part.LineSegment(App.Vector(8, -4.4, 0), App.Vector(8, 4, 0)),
    Part.LineSegment(App.Vector(8, 4, 0), App.Vector(5.4, 4, 0)),
    Part.LineSegment(App.Vector(5.4, 4, 0), App.Vector(5.4, -4.4, 0)),
], False)
sketch13.addConstraint([
    Sketcher.Constraint("Coincident", 0, 2, 1, 1),
    Sketcher.Constraint("Coincident", 1, 2, 2, 1),
    Sketcher.Constraint("Coincident", 2, 2, 3, 1),
    Sketcher.Constraint("Coincident", 3, 2, 0, 1),
    Sketcher.Constraint("Coincident", 4, 2, 5, 1),
    Sketcher.Constraint("Coincident", 5, 2, 6, 1),
    Sketcher.Constraint("Coincident", 6, 2, 7, 1),
    Sketcher.Constraint("Coincident", 7, 2, 4, 1),
    Sketcher.Constraint("Coincident", 8, 2, 9, 1),
    Sketcher.Constraint("Coincident", 9, 2, 10, 1),
    Sketcher.Constraint("Coincident", 10, 2, 11, 1),
    Sketcher.Constraint("Coincident", 11, 2, 8, 1),
    Sketcher.Constraint("Coincident", 12, 2, 13, 1),
    Sketcher.Constraint("Coincident", 13, 2, 14, 1),
    Sketcher.Constraint("Coincident", 14, 2, 15, 1),
    Sketcher.Constraint("Coincident", 15, 2, 12, 1),
    Sketcher.Constraint("Vertical", 0),
    Sketcher.Constraint("Horizontal", 1),
    Sketcher.Constraint("Vertical", 2),
    Sketcher.Constraint("Horizontal", 3),
    Sketcher.Constraint("Horizontal", 4),
    Sketcher.Constraint("Vertical", 5),
    Sketcher.Constraint("Horizontal", 6),
    Sketcher.Constraint("Vertical", 7),
    Sketcher.Constraint("Vertical", 8),
    Sketcher.Constraint("Horizontal", 9),
    Sketcher.Constraint("Vertical", 10),
    Sketcher.Constraint("Horizontal", 11),
    Sketcher.Constraint("Horizontal", 12),
    Sketcher.Constraint("Vertical", 13),
    Sketcher.Constraint("Horizontal", 14),
    Sketcher.Constraint("Vertical", 15),
    Sketcher.Constraint("PointOnObject", 2, 2, -1),
    Sketcher.Constraint("Horizontal", 9, 2, 13, 2),
    Sketcher.Constraint("Vertical", 5, 2, 8, 2),
    Sketcher.Constraint("DistanceX", 9, 1, 9, 2, Q("7.6 mm")),
    Sketcher.Constraint("DistanceX", -1, 1, 12, 2, Q("8 mm")),
    Sketcher.Constraint("DistanceY", 8, 2, 8, 1, Q("4.59 mm")),
    Sketcher.Constraint("DistanceX", 4, 2, -1, 1, Q("3.8 mm")),
    Sketcher.Constraint("DistanceX", 4, 2, 4, 1, Q("8.156 mm")),
    Sketcher.Constraint("DistanceY", 13, 1, 13, 2, Q("8.376 mm")),
    Sketcher.Constraint("DistanceY", 4, 2, -1, 1, Q("5.15 mm")),
    Sketcher.Constraint("DistanceX", 1, 1, 1, 2, Q("3.8142 mm")),
    Sketcher.Constraint("DistanceX", 12, 1, 12, 2, Q("2.6097 mm")),
    Sketcher.Constraint("DistanceY", 0, 2, 0, 1, Q("3.9346 mm")),
    Sketcher.Constraint("DistanceY", 5, 2, 5, 1, Q("3.2453 mm")),
    Sketcher.Constraint("DistanceX", 0, 2, -1, 1, Q("8.315 mm")),
    Sketcher.Constraint("DistanceY", -1, 1, 8, 2, Q("4.017 mm")),
])
pocket10 = body.newObject("PartDesign::Pocket", "Pocket009")
pocket10.Profile = sketch13
pocket10.Length = 3

sketch14 = body.newObject("Sketcher::SketchObject", "Sketch013")
sketch14.AttachmentSupport = (doc.getObject("YZ_Plane"), [""])
sketch14.MapMode = "FlatFace"
sketch14.AttachmentOffset = App.Placement(App.Vector(0, 0, 8), App.Rotation())
sketch14.addGeometry([
    Part.LineSegment(App.Vector(8, -10, 0), App.Vector(15, -10, 0)),
    Part.LineSegment(App.Vector(15, -10, 0), App.Vector(15, 10, 0)),
    Part.LineSegment(App.Vector(15, 10, 0), App.Vector(8, 10, 0)),
    Part.LineSegment(App.Vector(8, 10, 0), App.Vector(8, -10, 0)),
    Part.Circle(App.Vector(10, 5, 0), App.Vector(0, 0, 1), 1.4),
    Part.Circle(App.Vector(10, -5, 0), App.Vector(0, 0, 1), 1.4),
    Part.LineSegment(App.Vector(55, -10, 0), App.Vector(62, -10, 0)),
    Part.LineSegment(App.Vector(62, -10, 0), App.Vector(62, 10, 0)),
    Part.LineSegment(App.Vector(62, 10, 0), App.Vector(55, 10, 0)),
    Part.LineSegment(App.Vector(55, 10, 0), App.Vector(55, 4.4, 0)),
    Part.ArcOfCircle(Part.Circle(App.Vector(46, 0, 0), App.Vector(0, 0, 1), 10), math.radians(-26), math.radians(26)),
    Part.LineSegment(App.Vector(55, -4.4, 0), App.Vector(55, -10, 0)),
    Part.Circle(App.Vector(60, 5, 0), App.Vector(0, 0, 1), 1.4),
    Part.Circle(App.Vector(60, -5, 0), App.Vector(0, 0, 1), 1.4),
], False)
sketch14.addConstraint([
    Sketcher.Constraint("Coincident", 0, 2, 1, 1),
    Sketcher.Constraint("Coincident", 1, 2, 2, 1),
    Sketcher.Constraint("Coincident", 2, 2, 3, 1),
    Sketcher.Constraint("Coincident", 3, 2, 0, 1),
    Sketcher.Constraint("Coincident", 6, 2, 7, 1),
    Sketcher.Constraint("Coincident", 7, 2, 8, 1),
    Sketcher.Constraint("Coincident", 8, 2, 9, 1),
    Sketcher.Constraint("Coincident", 9, 2, 10, 2),
    Sketcher.Constraint("Coincident", 10, 1, 11, 1),
    Sketcher.Constraint("Coincident", 11, 2, 6, 1),
    Sketcher.Constraint("Horizontal", 0),
    Sketcher.Constraint("Vertical", 1),
    Sketcher.Constraint("Horizontal", 2),
    Sketcher.Constraint("Vertical", 3),
    Sketcher.Constraint("Horizontal", 6),
    Sketcher.Constraint("Vertical", 7),
    Sketcher.Constraint("Horizontal", 8),
    Sketcher.Constraint("Vertical", 9),
    Sketcher.Constraint("Vertical", 11),
    Sketcher.Constraint("Equal", 4, 5),
    Sketcher.Constraint("Equal", 5, 12),
    Sketcher.Constraint("Equal", 12, 13),
    Sketcher.Constraint("Symmetric", 4, 3, 5, 3, -1),
    Sketcher.Constraint("Symmetric", 12, 3, 13, 3, -1),
    Sketcher.Constraint("Symmetric", 9, 2, 10, 1, -1),
    Sketcher.Constraint("Horizontal", 4, 3, 12, 3),
    Sketcher.Constraint("Horizontal", 3, 2, 6, 2),
    Sketcher.Constraint("Horizontal", 2, 2, 7, 2),
    Sketcher.Constraint("Equal", 2, 6),
    Sketcher.Constraint("Equal", 9, 11),
    Sketcher.Constraint("Radius", 10, Q("10 mm")),
    Sketcher.Constraint("Diameter", 4, Q("2.7 mm")),
    Sketcher.Constraint("DistanceX", 0, 1, 0, 2, Q("7 mm")),
    Sketcher.Constraint("DistanceY", 1, 1, 1, 2, Q("20 mm")),
    Sketcher.Constraint("DistanceX", -1, 1, 4, 3, Q("10 mm")),
    Sketcher.Constraint("DistanceY", -1, 1, 4, 3, Q("5 mm")),
    Sketcher.Constraint("DistanceX", -1, 1, 10, 3, Q("46 mm")),
    Sketcher.Constraint("DistanceX", -1, 1, 12, 3, Q("60 mm")),
    Sketcher.Constraint("DistanceX", -1, 1, 0, 2, Q("15 mm")),
    Sketcher.Constraint("DistanceX", -1, 1, 6, 2, Q("62 mm")),
])
pad4 = body.newObject("PartDesign::Pad", "Pad003")
pad4.Profile = sketch14
pad4.Length = 8

sketch15 = body.newObject("Sketcher::SketchObject", "Sketch014")
sketch15.AttachmentSupport = (doc.getObject("YZ_Plane"), [""])
sketch15.MapMode = "FlatFace"
sketch15.AttachmentOffset = App.Placement(App.Vector(0, 0, 5), App.Rotation())
sketch15.addGeometry([
    Part.Circle(App.Vector(60, 5, 0), App.Vector(0, 0, 1), 1.4),
    Part.Circle(App.Vector(60, -5, 0), App.Vector(0, 0, 1), 1.4),
    Part.Circle(App.Vector(10, 5, 0), App.Vector(0, 0, 1), 1.4),
    Part.Circle(App.Vector(10, -5, 0), App.Vector(0, 0, 1), 1.4),
], False)
sketch15.addConstraint([
    Sketcher.Constraint("Equal", 0, 1),
    Sketcher.Constraint("Equal", 1, 2),
    Sketcher.Constraint("Equal", 2, 3),
    Sketcher.Constraint("Symmetric", 0, 3, 1, 3, -1),
    Sketcher.Constraint("Symmetric", 2, 3, 3, 3, -1),
    Sketcher.Constraint("Horizontal", 0, 3, 2, 3),
    Sketcher.Constraint("Diameter", 0, Q("2.7 mm")),
    Sketcher.Constraint("DistanceX", -1, 1, 0, 3, Q("60 mm")),
    Sketcher.Constraint("DistanceY", -1, 1, 0, 3, Q("5 mm")),
    Sketcher.Constraint("DistanceX", -1, 1, 2, 3, Q("10 mm")),
])
pad5 = body.newObject("PartDesign::Pad", "Pad004")
pad5.Profile = sketch15
pad5.Length = 2

sketch16 = body.newObject("Sketcher::SketchObject", "Sketch015")
sketch16.AttachmentSupport = (doc.getObject("YZ_Plane"), [""])
sketch16.MapMode = "FlatFace"
sketch16.AttachmentOffset = App.Placement(App.Vector(0, 0, 16), App.Rotation())
sketch16.addGeometry([
    Part.LineSegment(App.Vector(62, -10, 0), App.Vector(62, 10, 0)),
    Part.LineSegment(App.Vector(62, 10, 0), App.Vector(55, 10, 0)),
    Part.LineSegment(App.Vector(55, 10, 0), App.Vector(55, 4.4, 0)),
    Part.ArcOfCircle(Part.Circle(App.Vector(46, 0, 0), App.Vector(0, 0, 1), 10), math.radians(-26), math.radians(26)),
    Part.LineSegment(App.Vector(55, -4.4, 0), App.Vector(55, -10, 0)),
    Part.LineSegment(App.Vector(55, -10, 0), App.Vector(62, -10, 0)),
    Part.Circle(App.Vector(60, 5, 0), App.Vector(0, 0, 1), 1.4),
    Part.Circle(App.Vector(60, -5, 0), App.Vector(0, 0, 1), 1.4),
    Part.LineSegment(App.Vector(8, -10, 0), App.Vector(15, -10, 0)),
    Part.LineSegment(App.Vector(15, -10, 0), App.Vector(15, 10, 0)),
    Part.LineSegment(App.Vector(15, 10, 0), App.Vector(8, 10, 0)),
    Part.LineSegment(App.Vector(8, 10, 0), App.Vector(8, -10, 0)),
    Part.Circle(App.Vector(10, 5, 0), App.Vector(0, 0, 1), 1.4),
    Part.Circle(App.Vector(10, -5, 0), App.Vector(0, 0, 1), 1.4),
], False)
sketch16.addConstraint([
    Sketcher.Constraint("Coincident", 0, 2, 1, 1),
    Sketcher.Constraint("Coincident", 1, 2, 2, 1),
    Sketcher.Constraint("Coincident", 2, 2, 3, 2),
    Sketcher.Constraint("Coincident", 3, 1, 4, 1),
    Sketcher.Constraint("Coincident", 4, 2, 5, 1),
    Sketcher.Constraint("Coincident", 5, 2, 0, 1),
    Sketcher.Constraint("Coincident", 8, 2, 9, 1),
    Sketcher.Constraint("Coincident", 9, 2, 10, 1),
    Sketcher.Constraint("Coincident", 10, 2, 11, 1),
    Sketcher.Constraint("Coincident", 11, 2, 8, 1),
    Sketcher.Constraint("Vertical", 0),
    Sketcher.Constraint("Horizontal", 1),
    Sketcher.Constraint("Vertical", 2),
    Sketcher.Constraint("Vertical", 4),
    Sketcher.Constraint("Horizontal", 5),
    Sketcher.Constraint("Horizontal", 8),
    Sketcher.Constraint("Vertical", 9),
    Sketcher.Constraint("Horizontal", 10),
    Sketcher.Constraint("Vertical", 11),
    Sketcher.Constraint("Equal", 6, 7),
    Sketcher.Constraint("Equal", 7, 12),
    Sketcher.Constraint("Equal", 12, 13),
    Sketcher.Constraint("Symmetric", 6, 3, 7, 3, -1),
    Sketcher.Constraint("Symmetric", 12, 3, 13, 3, -1),
    Sketcher.Constraint("Symmetric", 2, 2, 3, 1, -1),
    Sketcher.Constraint("Horizontal", 6, 3, 12, 3),
    Sketcher.Constraint("Horizontal", 5, 2, 8, 2),
    Sketcher.Constraint("Horizontal", 1, 2, 9, 2),
    Sketcher.Constraint("Equal", 5, 8),
    Sketcher.Constraint("Equal", 2, 4),
    Sketcher.Constraint("Radius", 3, Q("10 mm")),
    Sketcher.Constraint("Diameter", 6, Q("2.7 mm")),
    Sketcher.Constraint("DistanceX", 1, 2, 1, 1, Q("7 mm")),
    Sketcher.Constraint("DistanceY", 0, 1, 0, 2, Q("20 mm")),
    Sketcher.Constraint("DistanceX", -1, 1, 3, 3, Q("46 mm")),
    Sketcher.Constraint("DistanceX", -1, 1, 6, 3, Q("60 mm")),
    Sketcher.Constraint("DistanceY", -1, 1, 6, 3, Q("5 mm")),
    Sketcher.Constraint("DistanceX", -1, 1, 12, 3, Q("10 mm")),
    Sketcher.Constraint("DistanceX", -1, 1, 0, 2, Q("62 mm")),
    Sketcher.Constraint("DistanceX", -1, 1, 8, 2, Q("15 mm")),
])
pocket11 = body.newObject("PartDesign::Pocket", "Pocket010")
pocket11.Profile = sketch16
pocket11.Length = 4

doc.recompute()
